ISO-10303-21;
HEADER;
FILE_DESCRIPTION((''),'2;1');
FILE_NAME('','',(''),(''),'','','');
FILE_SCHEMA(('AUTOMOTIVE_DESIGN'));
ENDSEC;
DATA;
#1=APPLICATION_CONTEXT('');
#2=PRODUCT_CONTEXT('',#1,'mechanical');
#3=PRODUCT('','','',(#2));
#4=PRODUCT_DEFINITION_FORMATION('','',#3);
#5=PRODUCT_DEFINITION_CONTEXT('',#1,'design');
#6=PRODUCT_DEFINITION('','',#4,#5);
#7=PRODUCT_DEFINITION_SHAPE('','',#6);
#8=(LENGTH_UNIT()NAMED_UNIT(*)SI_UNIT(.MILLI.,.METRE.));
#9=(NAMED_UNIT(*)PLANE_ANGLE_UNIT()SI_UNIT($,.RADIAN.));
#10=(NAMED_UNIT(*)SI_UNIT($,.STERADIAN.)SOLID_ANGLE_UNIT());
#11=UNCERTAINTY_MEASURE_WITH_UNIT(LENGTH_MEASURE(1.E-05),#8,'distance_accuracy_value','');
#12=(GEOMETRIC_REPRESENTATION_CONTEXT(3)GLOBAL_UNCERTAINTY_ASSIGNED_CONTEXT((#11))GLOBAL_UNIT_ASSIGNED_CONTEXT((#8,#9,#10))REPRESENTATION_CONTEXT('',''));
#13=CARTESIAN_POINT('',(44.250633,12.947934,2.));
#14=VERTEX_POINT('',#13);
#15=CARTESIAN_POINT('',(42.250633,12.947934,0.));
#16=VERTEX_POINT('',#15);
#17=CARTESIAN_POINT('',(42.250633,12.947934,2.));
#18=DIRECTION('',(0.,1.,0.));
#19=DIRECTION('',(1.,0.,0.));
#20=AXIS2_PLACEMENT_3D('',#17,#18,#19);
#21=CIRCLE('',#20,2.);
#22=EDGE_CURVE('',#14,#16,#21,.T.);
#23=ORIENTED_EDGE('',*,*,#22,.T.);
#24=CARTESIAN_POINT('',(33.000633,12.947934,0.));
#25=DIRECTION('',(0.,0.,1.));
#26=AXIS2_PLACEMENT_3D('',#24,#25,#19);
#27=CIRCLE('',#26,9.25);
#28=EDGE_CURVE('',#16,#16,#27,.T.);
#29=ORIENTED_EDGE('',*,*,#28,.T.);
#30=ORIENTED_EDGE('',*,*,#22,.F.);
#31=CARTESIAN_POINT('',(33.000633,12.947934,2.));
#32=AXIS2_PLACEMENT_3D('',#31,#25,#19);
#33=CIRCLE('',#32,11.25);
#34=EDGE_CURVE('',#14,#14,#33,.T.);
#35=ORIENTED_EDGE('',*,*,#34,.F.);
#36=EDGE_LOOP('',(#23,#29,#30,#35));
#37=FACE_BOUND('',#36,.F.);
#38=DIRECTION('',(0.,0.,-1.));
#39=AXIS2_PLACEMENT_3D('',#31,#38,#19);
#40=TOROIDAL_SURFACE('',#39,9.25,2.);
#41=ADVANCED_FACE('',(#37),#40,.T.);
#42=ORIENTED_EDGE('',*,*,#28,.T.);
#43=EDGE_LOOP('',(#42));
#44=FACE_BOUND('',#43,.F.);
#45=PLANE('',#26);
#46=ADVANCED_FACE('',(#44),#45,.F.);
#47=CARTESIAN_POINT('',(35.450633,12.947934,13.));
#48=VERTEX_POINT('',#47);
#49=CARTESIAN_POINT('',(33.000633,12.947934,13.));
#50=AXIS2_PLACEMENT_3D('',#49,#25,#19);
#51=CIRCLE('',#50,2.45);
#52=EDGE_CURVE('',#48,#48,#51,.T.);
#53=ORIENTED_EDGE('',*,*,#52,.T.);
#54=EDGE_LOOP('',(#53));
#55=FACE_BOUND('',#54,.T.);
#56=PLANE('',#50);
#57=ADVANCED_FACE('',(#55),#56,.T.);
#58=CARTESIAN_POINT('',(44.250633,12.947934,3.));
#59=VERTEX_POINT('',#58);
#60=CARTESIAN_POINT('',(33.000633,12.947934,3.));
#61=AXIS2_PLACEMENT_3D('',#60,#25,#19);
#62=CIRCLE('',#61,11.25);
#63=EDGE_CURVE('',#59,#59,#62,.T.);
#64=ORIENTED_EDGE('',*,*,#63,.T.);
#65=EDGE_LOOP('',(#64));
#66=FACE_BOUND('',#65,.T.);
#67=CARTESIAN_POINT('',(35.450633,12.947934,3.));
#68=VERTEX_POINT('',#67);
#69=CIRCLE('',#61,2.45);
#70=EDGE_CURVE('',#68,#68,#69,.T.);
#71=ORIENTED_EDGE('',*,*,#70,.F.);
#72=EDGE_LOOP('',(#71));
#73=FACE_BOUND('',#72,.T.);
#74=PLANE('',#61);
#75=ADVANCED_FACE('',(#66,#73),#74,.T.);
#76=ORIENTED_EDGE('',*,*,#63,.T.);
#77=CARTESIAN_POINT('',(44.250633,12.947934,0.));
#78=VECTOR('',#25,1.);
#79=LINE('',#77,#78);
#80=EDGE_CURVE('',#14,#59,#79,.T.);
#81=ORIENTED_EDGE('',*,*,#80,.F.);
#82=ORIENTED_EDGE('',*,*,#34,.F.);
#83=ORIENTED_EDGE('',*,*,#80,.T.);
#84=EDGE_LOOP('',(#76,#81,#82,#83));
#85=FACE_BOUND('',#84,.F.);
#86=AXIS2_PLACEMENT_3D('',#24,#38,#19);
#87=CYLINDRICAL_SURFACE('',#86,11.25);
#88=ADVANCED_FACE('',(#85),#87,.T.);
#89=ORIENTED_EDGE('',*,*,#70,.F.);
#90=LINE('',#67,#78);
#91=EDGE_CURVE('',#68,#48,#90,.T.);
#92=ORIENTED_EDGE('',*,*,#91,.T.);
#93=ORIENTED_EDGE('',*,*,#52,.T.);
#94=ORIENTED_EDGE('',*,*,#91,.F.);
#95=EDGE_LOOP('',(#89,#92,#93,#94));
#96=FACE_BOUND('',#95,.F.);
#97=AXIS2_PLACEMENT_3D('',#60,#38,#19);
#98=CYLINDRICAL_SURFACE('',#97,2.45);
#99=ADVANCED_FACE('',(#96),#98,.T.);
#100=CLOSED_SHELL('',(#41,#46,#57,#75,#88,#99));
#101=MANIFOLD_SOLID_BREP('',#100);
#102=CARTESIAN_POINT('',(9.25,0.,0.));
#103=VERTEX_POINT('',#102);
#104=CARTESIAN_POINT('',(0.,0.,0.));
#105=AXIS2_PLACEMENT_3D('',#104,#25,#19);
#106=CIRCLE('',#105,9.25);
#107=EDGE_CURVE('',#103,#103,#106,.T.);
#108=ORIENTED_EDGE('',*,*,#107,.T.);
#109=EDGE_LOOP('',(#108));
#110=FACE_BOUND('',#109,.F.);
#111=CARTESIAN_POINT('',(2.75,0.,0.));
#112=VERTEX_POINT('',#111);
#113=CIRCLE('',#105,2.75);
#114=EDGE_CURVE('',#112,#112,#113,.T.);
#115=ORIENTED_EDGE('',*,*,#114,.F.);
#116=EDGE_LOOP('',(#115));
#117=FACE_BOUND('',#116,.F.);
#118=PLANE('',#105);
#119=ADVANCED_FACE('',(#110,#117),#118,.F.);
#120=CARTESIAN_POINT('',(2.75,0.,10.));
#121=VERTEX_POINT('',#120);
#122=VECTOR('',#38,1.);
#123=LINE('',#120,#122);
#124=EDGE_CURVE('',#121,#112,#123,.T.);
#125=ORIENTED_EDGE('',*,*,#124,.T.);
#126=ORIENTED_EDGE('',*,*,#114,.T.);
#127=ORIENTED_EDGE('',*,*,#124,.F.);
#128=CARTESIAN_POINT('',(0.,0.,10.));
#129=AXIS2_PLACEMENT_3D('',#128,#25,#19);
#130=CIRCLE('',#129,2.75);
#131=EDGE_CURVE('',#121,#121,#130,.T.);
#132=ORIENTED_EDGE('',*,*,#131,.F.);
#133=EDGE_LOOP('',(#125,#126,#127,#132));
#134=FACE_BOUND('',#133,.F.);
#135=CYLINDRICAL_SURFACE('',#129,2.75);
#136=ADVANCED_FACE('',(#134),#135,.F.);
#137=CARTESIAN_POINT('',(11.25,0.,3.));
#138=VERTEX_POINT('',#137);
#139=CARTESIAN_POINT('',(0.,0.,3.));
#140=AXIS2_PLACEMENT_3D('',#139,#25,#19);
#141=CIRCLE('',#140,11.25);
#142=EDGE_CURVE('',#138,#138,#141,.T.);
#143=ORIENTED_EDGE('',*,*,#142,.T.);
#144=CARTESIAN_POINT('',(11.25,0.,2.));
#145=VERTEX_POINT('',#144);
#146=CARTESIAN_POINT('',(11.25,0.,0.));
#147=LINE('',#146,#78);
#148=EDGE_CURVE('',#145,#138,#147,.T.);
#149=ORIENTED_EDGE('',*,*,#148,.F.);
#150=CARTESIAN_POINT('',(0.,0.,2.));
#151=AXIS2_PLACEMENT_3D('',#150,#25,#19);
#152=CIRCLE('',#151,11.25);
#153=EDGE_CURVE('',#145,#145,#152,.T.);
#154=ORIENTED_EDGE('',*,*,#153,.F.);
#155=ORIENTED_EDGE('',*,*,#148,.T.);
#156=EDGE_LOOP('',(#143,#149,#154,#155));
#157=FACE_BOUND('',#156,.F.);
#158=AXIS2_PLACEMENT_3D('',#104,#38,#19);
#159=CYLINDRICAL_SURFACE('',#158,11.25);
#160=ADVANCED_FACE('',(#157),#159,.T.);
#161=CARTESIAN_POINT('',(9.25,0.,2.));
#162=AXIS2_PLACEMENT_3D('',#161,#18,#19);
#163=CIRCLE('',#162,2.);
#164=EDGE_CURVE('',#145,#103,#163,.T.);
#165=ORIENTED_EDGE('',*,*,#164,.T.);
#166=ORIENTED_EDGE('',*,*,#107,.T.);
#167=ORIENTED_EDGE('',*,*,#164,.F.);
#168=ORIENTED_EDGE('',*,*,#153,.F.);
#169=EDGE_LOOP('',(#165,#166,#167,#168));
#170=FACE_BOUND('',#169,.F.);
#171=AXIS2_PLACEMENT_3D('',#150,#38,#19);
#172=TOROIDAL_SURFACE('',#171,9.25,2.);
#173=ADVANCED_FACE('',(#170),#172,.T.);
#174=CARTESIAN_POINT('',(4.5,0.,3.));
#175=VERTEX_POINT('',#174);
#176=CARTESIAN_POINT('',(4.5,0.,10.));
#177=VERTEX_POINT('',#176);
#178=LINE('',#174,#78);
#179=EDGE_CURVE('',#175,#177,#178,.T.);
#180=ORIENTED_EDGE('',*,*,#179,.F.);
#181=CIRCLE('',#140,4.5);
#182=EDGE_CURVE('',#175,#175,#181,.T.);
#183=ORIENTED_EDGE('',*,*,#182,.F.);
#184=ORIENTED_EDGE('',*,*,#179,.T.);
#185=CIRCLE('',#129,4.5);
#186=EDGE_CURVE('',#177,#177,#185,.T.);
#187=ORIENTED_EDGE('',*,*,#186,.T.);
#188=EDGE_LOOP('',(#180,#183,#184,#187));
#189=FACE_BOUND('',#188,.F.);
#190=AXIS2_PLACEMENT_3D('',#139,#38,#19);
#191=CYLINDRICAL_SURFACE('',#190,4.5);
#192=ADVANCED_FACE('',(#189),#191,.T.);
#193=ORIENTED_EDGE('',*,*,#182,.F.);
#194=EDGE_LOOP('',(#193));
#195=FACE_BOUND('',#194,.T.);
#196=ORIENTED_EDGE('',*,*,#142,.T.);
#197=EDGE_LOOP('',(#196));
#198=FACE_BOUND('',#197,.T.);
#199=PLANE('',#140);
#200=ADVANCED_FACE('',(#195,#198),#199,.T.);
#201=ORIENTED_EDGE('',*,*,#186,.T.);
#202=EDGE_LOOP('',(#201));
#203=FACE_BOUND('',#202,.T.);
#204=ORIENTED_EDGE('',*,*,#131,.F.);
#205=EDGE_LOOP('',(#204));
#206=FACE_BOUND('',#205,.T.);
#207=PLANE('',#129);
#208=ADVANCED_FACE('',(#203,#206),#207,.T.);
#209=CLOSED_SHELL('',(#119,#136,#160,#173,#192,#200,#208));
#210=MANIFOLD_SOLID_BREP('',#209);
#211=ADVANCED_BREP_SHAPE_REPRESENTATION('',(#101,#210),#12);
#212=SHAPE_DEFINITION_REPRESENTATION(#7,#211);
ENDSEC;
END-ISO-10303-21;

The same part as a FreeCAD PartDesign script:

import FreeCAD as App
import Part
import Sketcher
from FreeCAD import Vector
Q = App.Units.Quantity


def edges_at(feature, points):
    """Names of the edges that pass closest to the given points."""
    edges = feature.Shape.Edges
    near = lambda p: min(range(len(edges)), key=lambda i: edges[i].distToShape(Part.Vertex(*p))[0])
    return sorted({f"Edge{near(p) + 1}" for p in points})

doc = App.newDocument("Part")
body = doc.addObject("PartDesign::Body", "Body")

# Sketch on XY plane
sketch1 = body.newObject("Sketcher::SketchObject", "Sketch")
sketch1.AttachmentSupport = (doc.getObject("XY_Plane"), [""])
sketch1.MapMode = "FlatFace"
sketch1.addGeometry(Part.Circle(Vector(0, 0, 0), Vector(0, 0, 1), 11), False)
sketch1.addConstraint(Sketcher.Constraint("Coincident", 0, 3, -1, 1))
sketch1.addConstraint(Sketcher.Constraint("Diameter", 0, Q("22.5 mm")))
pad1 = body.newObject("PartDesign::Pad", "Pad")
pad1.Profile = sketch1
pad1.Length = 3

# Sketch on XY plane
sketch2 = body.newObject("Sketcher::SketchObject", "Sketch001")
sketch2.AttachmentSupport = (doc.getObject("XY_Plane"), [""])
sketch2.MapMode = "FlatFace"
sketch2.AttachmentOffset = App.Placement(Vector(0, 0, 3), App.Rotation())
sketch2.addGeometry(Part.Circle(Vector(0, 0, 0), Vector(0, 0, 1), 4.5), False)
sketch2.addConstraint(Sketcher.Constraint("Coincident", 0, 3, -1, 1))
sketch2.addConstraint(Sketcher.Constraint("Diameter", 0, Q("9 mm")))
pad2 = body.newObject("PartDesign::Pad", "Pad001")
pad2.Profile = sketch2
pad2.Length = 7

# Sketch on XY plane
sketch3 = body.newObject("Sketcher::SketchObject", "Sketch002")
sketch3.AttachmentSupport = (doc.getObject("XY_Plane"), [""])
sketch3.MapMode = "FlatFace"
sketch3.AttachmentOffset = App.Placement(Vector(0, 0, 10), App.Rotation())
sketch3.addGeometry(Part.Circle(Vector(0, 0, 0), Vector(0, 0, 1), 2.8), False)
sketch3.addConstraint(Sketcher.Constraint("Coincident", 0, 3, -1, 1))
sketch3.addConstraint(Sketcher.Constraint("Diameter", 0, Q("5.5 mm")))
pocket1 = body.newObject("PartDesign::Pocket", "Pocket")
pocket1.Profile = sketch3
pocket1.Length = 70.6
doc.recompute()

fillet = body.newObject("PartDesign::Fillet", "Fillet")
fillet.Base = (pocket1, edges_at(pocket1, [(-11.25, 0, 0)]))
fillet.Radius = 2
body2 = doc.addObject("PartDesign::Body", "Body001")

# Sketch on XY plane
sketch4 = body2.newObject("Sketcher::SketchObject", "Sketch003")
sketch4.AttachmentSupport = (doc.getObject("XY_Plane001"), [""])
sketch4.MapMode = "FlatFace"
sketch4.addGeometry(Part.Circle(Vector(33, 13, 0), Vector(0, 0, 1), 11), False)
sketch4.addConstraint(Sketcher.Constraint("Diameter", 0, Q("22.5 mm")))
sketch4.addConstraint(Sketcher.Constraint("DistanceX", -1, 1, 0, 3, Q("33.000633 mm")))
sketch4.addConstraint(Sketcher.Constraint("DistanceY", -1, 1, 0, 3, Q("12.947934 mm")))
pad3 = body2.newObject("PartDesign::Pad", "Pad002")
pad3.Profile = sketch4
pad3.Length = 3

# Sketch on XY plane
sketch5 = body2.newObject("Sketcher::SketchObject", "Sketch004")
sketch5.AttachmentSupport = (doc.getObject("XY_Plane001"), [""])
sketch5.MapMode = "FlatFace"
sketch5.AttachmentOffset = App.Placement(Vector(0, 0, 3), App.Rotation())
sketch5.addGeometry(Part.Circle(Vector(33, 12.9, 0), Vector(0, 0, 1), 2.5), False)
sketch5.addConstraint(Sketcher.Constraint("Diameter", 0, Q("4.9 mm")))
sketch5.addConstraint(Sketcher.Constraint("DistanceX", -1, 1, 0, 3, Q("33.000633 mm")))
sketch5.addConstraint(Sketcher.Constraint("DistanceY", -1, 1, 0, 3, Q("12.947934 mm")))
pad4 = body2.newObject("PartDesign::Pad", "Pad003")
pad4.Profile = sketch5
pad4.Length = 10
doc.recompute()

fillet2 = body2.newObject("PartDesign::Fillet", "Fillet001")
fillet2.Base = (pad4, edges_at(pad4, [(21.751, 12.948, 0)]))
fillet2.Radius = 2

doc.recompute()
